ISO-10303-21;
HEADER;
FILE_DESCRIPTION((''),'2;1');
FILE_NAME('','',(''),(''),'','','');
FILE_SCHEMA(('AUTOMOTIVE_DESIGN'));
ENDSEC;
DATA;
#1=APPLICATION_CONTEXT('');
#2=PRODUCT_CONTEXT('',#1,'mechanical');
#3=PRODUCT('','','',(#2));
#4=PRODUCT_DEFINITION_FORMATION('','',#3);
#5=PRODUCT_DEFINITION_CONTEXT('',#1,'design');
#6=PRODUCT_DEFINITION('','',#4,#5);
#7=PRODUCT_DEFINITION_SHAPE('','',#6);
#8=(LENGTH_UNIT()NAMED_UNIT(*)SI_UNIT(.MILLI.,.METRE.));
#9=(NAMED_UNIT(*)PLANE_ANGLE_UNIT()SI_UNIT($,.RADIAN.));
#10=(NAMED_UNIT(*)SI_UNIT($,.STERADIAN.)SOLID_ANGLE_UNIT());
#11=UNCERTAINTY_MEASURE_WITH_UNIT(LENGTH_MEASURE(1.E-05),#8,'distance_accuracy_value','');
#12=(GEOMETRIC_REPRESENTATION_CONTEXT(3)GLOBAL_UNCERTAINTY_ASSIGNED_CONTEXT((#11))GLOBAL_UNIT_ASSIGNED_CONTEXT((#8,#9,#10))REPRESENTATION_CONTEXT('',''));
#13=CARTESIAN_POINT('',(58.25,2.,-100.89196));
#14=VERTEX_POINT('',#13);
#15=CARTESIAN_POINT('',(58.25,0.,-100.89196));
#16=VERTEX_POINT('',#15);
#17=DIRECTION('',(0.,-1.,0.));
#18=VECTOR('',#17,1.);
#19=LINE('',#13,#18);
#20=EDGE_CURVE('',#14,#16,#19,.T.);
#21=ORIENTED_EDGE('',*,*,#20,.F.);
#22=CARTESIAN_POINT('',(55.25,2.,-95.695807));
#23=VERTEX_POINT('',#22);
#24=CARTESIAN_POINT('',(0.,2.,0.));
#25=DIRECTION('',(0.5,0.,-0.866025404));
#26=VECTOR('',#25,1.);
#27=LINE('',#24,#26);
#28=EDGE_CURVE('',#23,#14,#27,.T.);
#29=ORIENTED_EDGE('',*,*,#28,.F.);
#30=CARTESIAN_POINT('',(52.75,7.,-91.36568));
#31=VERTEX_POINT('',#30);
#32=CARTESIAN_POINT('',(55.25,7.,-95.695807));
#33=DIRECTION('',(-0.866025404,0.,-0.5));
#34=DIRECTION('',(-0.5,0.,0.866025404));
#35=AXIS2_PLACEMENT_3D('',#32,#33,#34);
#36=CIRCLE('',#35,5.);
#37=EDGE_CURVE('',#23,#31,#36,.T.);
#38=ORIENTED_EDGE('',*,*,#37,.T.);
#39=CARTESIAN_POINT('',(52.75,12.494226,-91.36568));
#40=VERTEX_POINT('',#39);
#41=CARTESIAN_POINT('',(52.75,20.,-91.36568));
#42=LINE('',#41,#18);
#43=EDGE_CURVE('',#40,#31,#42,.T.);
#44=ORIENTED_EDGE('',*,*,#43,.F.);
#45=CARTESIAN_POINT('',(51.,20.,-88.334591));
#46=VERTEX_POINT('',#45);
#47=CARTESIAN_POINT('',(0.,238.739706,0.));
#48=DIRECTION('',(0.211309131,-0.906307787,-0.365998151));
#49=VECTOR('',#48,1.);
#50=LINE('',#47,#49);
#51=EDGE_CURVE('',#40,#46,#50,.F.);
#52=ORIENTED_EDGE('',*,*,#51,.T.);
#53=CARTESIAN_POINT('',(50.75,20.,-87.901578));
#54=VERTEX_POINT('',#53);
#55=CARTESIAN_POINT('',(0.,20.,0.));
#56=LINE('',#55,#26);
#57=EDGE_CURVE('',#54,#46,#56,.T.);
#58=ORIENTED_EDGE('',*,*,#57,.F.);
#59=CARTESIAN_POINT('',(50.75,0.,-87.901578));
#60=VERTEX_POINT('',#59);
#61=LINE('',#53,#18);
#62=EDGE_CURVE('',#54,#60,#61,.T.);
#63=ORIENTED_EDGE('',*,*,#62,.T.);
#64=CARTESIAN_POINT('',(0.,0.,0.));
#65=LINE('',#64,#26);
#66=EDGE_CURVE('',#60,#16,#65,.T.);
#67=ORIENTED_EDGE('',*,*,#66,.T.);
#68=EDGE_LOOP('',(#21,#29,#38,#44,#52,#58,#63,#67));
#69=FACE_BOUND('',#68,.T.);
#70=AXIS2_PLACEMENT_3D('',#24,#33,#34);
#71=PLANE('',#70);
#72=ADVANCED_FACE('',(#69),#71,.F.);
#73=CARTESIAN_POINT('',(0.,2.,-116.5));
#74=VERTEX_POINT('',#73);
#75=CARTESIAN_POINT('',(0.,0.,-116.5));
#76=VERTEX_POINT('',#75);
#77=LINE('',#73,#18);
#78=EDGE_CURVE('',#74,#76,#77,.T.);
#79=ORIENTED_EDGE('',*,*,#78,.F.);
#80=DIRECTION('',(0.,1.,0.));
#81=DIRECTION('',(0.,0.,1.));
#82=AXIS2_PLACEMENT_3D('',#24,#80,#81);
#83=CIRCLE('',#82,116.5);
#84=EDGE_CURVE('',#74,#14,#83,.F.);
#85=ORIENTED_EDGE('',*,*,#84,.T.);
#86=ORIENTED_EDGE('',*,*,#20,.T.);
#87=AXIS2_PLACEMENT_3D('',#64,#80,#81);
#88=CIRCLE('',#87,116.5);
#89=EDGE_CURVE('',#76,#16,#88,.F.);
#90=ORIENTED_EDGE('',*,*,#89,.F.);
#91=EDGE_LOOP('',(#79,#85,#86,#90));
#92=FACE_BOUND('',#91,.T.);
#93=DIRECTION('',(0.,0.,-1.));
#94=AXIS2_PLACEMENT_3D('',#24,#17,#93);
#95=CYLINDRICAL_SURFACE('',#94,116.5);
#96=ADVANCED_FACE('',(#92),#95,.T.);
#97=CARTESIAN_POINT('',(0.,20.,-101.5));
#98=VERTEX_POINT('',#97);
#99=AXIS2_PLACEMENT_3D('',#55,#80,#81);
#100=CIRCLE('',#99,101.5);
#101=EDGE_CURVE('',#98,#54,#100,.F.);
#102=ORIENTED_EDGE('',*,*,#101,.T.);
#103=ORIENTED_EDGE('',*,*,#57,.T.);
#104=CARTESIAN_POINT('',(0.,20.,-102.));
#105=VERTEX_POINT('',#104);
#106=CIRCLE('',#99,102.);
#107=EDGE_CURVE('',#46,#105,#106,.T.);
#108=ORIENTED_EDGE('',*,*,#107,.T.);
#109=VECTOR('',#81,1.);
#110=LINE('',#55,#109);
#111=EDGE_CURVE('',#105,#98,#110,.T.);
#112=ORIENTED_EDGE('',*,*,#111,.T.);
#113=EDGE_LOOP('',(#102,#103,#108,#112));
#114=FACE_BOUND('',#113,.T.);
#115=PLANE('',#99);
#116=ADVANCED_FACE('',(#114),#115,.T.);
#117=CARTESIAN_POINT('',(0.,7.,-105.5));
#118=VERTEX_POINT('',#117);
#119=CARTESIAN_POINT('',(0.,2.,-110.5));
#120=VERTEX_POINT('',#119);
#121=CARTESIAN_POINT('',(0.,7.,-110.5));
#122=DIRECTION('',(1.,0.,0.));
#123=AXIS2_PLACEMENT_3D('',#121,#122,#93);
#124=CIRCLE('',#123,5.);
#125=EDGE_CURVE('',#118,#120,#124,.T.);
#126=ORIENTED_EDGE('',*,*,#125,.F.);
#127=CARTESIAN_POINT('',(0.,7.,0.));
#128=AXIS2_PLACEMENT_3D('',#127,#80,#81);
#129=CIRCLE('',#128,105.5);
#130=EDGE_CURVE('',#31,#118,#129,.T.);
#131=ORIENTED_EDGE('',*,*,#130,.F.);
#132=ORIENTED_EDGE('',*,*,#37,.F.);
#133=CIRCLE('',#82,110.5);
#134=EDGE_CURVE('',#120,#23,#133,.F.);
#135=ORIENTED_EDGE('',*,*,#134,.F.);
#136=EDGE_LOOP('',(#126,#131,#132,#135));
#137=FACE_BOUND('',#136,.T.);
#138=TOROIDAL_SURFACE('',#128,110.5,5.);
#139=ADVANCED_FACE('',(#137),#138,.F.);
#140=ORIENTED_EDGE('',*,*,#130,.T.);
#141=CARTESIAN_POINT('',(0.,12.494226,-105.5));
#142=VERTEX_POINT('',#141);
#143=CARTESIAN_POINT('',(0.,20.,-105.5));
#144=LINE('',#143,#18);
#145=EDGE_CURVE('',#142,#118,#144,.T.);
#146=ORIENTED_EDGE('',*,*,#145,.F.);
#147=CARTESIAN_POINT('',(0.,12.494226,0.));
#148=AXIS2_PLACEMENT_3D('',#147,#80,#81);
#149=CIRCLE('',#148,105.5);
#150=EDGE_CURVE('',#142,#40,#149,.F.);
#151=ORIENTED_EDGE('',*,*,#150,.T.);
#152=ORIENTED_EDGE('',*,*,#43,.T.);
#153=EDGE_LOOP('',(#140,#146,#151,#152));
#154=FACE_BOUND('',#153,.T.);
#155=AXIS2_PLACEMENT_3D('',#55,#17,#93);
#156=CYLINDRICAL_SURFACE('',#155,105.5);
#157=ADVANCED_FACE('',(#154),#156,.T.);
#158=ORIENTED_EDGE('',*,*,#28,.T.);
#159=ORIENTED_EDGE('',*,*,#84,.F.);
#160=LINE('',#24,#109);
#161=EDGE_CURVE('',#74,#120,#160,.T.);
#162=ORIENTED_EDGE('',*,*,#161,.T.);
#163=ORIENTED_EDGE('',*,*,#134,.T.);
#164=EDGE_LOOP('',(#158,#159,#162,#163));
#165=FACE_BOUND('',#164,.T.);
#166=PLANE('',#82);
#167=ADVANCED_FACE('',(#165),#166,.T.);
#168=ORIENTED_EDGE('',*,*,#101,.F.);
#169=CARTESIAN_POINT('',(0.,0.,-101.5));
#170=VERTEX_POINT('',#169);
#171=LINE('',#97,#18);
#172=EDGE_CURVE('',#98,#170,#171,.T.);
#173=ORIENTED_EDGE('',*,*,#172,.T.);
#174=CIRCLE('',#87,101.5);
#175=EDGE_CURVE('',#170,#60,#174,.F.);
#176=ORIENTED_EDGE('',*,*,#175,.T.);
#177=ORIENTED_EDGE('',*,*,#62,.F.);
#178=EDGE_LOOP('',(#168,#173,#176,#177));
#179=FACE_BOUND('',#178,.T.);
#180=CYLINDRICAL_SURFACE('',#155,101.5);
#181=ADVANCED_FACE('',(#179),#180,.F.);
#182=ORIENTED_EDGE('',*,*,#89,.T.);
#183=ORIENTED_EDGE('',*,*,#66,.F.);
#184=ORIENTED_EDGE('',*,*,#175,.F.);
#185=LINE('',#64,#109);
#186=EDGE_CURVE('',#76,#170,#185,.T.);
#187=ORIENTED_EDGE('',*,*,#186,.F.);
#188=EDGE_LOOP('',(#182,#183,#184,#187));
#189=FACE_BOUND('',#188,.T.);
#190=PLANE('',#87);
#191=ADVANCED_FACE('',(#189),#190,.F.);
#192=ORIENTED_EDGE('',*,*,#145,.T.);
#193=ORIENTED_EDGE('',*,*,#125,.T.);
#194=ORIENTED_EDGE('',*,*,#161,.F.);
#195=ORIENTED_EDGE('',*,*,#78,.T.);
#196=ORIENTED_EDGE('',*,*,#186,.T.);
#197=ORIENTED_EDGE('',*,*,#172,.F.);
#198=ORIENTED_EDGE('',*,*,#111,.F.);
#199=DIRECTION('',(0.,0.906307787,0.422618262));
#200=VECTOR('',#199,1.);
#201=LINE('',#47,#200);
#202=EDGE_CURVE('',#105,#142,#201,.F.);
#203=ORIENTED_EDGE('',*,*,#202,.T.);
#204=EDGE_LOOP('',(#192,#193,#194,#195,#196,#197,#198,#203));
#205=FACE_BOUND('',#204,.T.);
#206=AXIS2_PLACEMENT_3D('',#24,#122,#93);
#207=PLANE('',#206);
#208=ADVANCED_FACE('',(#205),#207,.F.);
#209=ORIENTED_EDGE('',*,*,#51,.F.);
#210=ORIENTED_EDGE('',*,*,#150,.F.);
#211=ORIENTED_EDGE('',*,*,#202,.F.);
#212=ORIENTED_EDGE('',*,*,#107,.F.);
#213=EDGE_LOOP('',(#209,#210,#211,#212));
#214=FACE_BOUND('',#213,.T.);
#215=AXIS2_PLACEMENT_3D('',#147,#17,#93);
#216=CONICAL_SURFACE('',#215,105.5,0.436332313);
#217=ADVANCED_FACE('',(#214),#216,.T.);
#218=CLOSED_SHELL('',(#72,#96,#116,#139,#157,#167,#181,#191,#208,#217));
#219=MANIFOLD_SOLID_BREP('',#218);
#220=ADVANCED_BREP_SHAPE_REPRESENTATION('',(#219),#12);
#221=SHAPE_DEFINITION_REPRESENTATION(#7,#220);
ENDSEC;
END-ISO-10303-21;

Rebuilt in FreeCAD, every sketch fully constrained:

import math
import FreeCAD as App
import Part
import Sketcher

V = App.Vector
Q = App.Units.Quantity


def edges_at(feature, points):
    """Names of the edges that pass closest to the given points."""
    edges = feature.Shape.Edges
    near = lambda p: min(range(len(edges)), key=lambda i: edges[i].distToShape(Part.Vertex(*p))[0])
    return sorted({f"Edge{near(p) + 1}" for p in points})

doc = App.newDocument("Part")
body = doc.addObject("PartDesign::Body", "Body")

# Sketch on XZ plane
sketch1 = body.newObject("Sketcher::SketchObject", "Sketch")
sketch1.AttachmentSupport = (doc.getObject("XZ_Plane"), [""])
sketch1.MapMode = "FlatFace"
sketch1.addGeometry([
    Part.ArcOfCircle(Part.Circle(V(0, 0, 0), V(0, 0, 1), 116), math.radians(-90), math.radians(-60)),
    Part.LineSegment(V(0, -116, 0), V(0, -106, 0)),
    Part.ArcOfCircle(Part.Circle(V(0, 0, 0), V(0, 0, 1), 106), math.radians(-90), math.radians(-60)),
    Part.LineSegment(V(53, -91, 0), V(58, -101, 0)),
], False)
sketch1.addConstraint([
    Sketcher.Constraint("Coincident", 0, 1, 1, 1),
    Sketcher.Constraint("Coincident", 1, 2, 2, 1),
    Sketcher.Constraint("Coincident", 2, 2, 3, 1),
    Sketcher.Constraint("Coincident", 3, 2, 0, 2),
    Sketcher.Constraint("Vertical", 1),
    Sketcher.Constraint("Coincident", 0, 3, -1, 1),
    Sketcher.Constraint("Coincident", 2, 3, -1, 1),
    Sketcher.Constraint("PointOnObject", 0, 1, -2),
    Sketcher.Constraint("Radius", 0, Q("116.5 mm")),
    Sketcher.Constraint("Radius", 2, Q("105.5 mm")),
    Sketcher.Constraint("Angle", 3, Q("-60 deg")),
    Sketcher.Constraint("DistanceX", -1, 1, 2, 2, Q("52.75 mm")),
])
pad1 = body.newObject("PartDesign::Pad", "Pad")
pad1.Profile = sketch1
pad1.Length = 2
pad1.Reversed = True

# Sketch on XZ plane
sketch2 = body.newObject("Sketcher::SketchObject", "Sketch001")
sketch2.AttachmentSupport = (doc.getObject("XZ_Plane"), [""])
sketch2.MapMode = "FlatFace"
sketch2.addGeometry([
    Part.ArcOfCircle(Part.Circle(V(0, 0, 0), V(0, 0, 1), 105.5), math.radians(-90), math.radians(-60)),
    Part.LineSegment(V(0, -105.5, 0), V(0, -101.5, 0)),
    Part.ArcOfCircle(Part.Circle(V(0, 0, 0), V(0, 0, 1), 101.5), math.radians(-90), math.radians(-60)),
    Part.LineSegment(V(50.8, -87.9, 0), V(52.8, -91.4, 0)),
], False)
sketch2.addConstraint([
    Sketcher.Constraint("Coincident", 0, 1, 1, 1),
    Sketcher.Constraint("Coincident", 1, 2, 2, 1),
    Sketcher.Constraint("Coincident", 2, 2, 3, 1),
    Sketcher.Constraint("Coincident", 3, 2, 0, 2),
    Sketcher.Constraint("Vertical", 1),
    Sketcher.Constraint("Coincident", 0, 3, -1, 1),
    Sketcher.Constraint("Coincident", 2, 3, -1, 1),
    Sketcher.Constraint("PointOnObject", 0, 1, -2),
    Sketcher.Constraint("Radius", 0, Q("105.5 mm")),
    Sketcher.Constraint("Radius", 2, Q("101.5 mm")),
    Sketcher.Constraint("Angle", 3, Q("-60 deg")),
    Sketcher.Constraint("DistanceX", -1, 1, 2, 2, Q("50.75 mm")),
])
pad2 = body.newObject("PartDesign::Pad", "Pad001")
pad2.Profile = sketch2
pad2.Length = 20
pad2.Reversed = True
doc.recompute()

fillet = body.newObject("PartDesign::Fillet", "Fillet")
fillet.Base = (pad2, edges_at(pad2, [(27.305, 2, -101.905)]))
fillet.Radius = 5
doc.recompute()

chamfer = body.newObject("PartDesign::Chamfer", "Chamfer")
chamfer.Base = (fillet, edges_at(fillet, [(27.305, 20, -101.905)]))
chamfer.ChamferType = "Two distances"
chamfer.Size = 3.5
chamfer.Size2 = 7.505774
chamfer.FlipDirection = True

doc.recompute()
